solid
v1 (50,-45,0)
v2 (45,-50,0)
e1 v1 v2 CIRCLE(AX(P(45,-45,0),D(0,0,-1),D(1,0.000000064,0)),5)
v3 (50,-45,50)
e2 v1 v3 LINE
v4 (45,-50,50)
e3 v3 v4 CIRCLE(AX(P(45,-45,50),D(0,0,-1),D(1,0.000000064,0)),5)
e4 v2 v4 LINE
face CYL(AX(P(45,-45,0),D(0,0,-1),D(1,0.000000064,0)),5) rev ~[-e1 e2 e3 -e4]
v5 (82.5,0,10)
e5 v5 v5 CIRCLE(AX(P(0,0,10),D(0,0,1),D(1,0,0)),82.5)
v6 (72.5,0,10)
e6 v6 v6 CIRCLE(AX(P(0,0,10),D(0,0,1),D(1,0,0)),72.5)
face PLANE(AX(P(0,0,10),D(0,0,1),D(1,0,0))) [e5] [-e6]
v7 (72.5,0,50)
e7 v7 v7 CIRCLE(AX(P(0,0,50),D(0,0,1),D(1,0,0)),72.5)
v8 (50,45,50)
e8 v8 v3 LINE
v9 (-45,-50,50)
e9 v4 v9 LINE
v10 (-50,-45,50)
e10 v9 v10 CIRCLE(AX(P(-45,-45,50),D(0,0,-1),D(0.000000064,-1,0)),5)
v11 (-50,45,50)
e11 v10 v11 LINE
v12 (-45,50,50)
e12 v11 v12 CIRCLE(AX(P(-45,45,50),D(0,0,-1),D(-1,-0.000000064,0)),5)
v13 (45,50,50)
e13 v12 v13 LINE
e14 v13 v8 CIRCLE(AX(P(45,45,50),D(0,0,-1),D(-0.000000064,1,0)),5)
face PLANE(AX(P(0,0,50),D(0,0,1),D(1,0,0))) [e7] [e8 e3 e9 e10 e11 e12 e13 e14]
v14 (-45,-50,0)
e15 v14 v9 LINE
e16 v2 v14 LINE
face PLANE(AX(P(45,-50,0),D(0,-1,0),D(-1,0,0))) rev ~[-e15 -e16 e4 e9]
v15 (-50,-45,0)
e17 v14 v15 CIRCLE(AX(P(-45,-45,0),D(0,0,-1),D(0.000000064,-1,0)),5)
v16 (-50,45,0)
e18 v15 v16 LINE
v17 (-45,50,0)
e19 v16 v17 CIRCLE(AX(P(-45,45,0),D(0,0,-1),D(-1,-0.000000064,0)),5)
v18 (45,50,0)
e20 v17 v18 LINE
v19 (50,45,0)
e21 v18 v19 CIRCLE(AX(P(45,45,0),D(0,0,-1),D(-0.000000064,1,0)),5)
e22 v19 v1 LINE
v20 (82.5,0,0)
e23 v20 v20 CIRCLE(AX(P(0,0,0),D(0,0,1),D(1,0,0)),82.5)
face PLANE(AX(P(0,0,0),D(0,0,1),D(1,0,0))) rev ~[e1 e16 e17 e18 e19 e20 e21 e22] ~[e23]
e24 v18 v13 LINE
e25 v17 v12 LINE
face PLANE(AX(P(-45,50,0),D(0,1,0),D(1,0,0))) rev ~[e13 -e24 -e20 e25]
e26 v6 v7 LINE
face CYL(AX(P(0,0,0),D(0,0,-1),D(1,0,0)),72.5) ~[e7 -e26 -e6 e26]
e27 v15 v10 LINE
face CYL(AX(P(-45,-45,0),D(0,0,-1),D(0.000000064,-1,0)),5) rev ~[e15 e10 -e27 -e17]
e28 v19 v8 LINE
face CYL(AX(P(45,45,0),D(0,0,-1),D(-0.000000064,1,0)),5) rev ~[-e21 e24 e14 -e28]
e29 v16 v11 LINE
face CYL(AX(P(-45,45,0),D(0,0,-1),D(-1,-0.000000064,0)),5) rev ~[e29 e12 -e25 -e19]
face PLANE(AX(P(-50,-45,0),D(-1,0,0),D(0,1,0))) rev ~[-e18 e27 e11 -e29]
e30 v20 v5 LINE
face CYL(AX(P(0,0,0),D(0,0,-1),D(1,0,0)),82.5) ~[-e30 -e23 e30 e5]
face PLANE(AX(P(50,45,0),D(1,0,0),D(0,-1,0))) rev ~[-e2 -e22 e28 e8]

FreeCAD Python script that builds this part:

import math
import FreeCAD as App
import Part
import Sketcher

V = App.Vector
Q = App.Units.Quantity

doc = App.newDocument("Part")
body = doc.addObject("PartDesign::Body", "Body")

sketch1 = doc.addObject("Sketcher::SketchObject", "Sketch")
body.addObject(sketch1)
sketch1.AttachmentSupport = (doc.XY_Plane, [""])
sketch1.MapMode = "FlatFace"
sketch1.addGeometry([
    Part.Circle(V(0, 0, 0), V(0, 0, 1), 72.5),
    Part.LineSegment(V(50, 45, 0), V(50, -45, 0)),
    Part.ArcOfCircle(Part.Circle(V(45, -45, 0), V(0, 0, 1), 5), math.radians(-90), math.radians(0)),
    Part.LineSegment(V(45, -50, 0), V(-45, -50, 0)),
    Part.ArcOfCircle(Part.Circle(V(-45, -45, 0), V(0, 0, 1), 5), math.radians(180), math.radians(270)),
    Part.LineSegment(V(-50, -45, 0), V(-50, 45, 0)),
    Part.ArcOfCircle(Part.Circle(V(-45, 45, 0), V(0, 0, 1), 5), math.radians(90), math.radians(180)),
    Part.LineSegment(V(-45, 50, 0), V(45, 50, 0)),
    Part.ArcOfCircle(Part.Circle(V(45, 45, 0), V(0, 0, 1), 5), math.radians(0), math.radians(90)),
], False)
sketch1.addConstraint([
    Sketcher.Constraint("Tangent", 1, 2, 2, 2),
    Sketcher.Constraint("Tangent", 2, 1, 3, 1),
    Sketcher.Constraint("Tangent", 3, 2, 4, 2),
    Sketcher.Constraint("Tangent", 4, 1, 5, 1),
    Sketcher.Constraint("Tangent", 5, 2, 6, 2),
    Sketcher.Constraint("Tangent", 6, 1, 7, 1),
    Sketcher.Constraint("Tangent", 7, 2, 8, 2),
    Sketcher.Constraint("Tangent", 8, 1, 1, 1),
    Sketcher.Constraint("Vertical", 1),
    Sketcher.Constraint("Horizontal", 3),
    Sketcher.Constraint("Vertical", 5),
    Sketcher.Constraint("Horizontal", 7),
    Sketcher.Constraint("Coincident", 0, 3, -1, 1),
    Sketcher.Constraint("Equal", 2, 4),
    Sketcher.Constraint("Equal", 4, 6),
    Sketcher.Constraint("Equal", 6, 8),
    Sketcher.Constraint("Symmetric", 2, 3, 6, 3, -1, 1),
    Sketcher.Constraint("Equal", 7, 1),
    Sketcher.Constraint("Diameter", 0, Q("145 mm")),
    Sketcher.Constraint("Radius", 2, Q("5 mm")),
    Sketcher.Constraint("DistanceX", 3, 2, 3, 1, Q("90 mm")),
])
pad1 = doc.addObject("PartDesign::Pad", "Pad")
body.addObject(pad1)
pad1.Profile = sketch1
pad1.Length = 50

sketch2 = doc.addObject("Sketcher::SketchObject", "Sketch001")
body.addObject(sketch2)
sketch2.AttachmentSupport = (doc.XY_Plane, [""])
sketch2.MapMode = "FlatFace"
sketch2.addGeometry([
    Part.Circle(V(0, 0, 0), V(0, 0, 1), 82),
    Part.Circle(V(0, 0, 0), V(0, 0, 1), 72),
], False)
sketch2.addConstraint([
    Sketcher.Constraint("Coincident", 0, 3, -1, 1),
    Sketcher.Constraint("Coincident", 1, 3, -1, 1),
    Sketcher.Constraint("Diameter", 0, Q("165 mm")),
    Sketcher.Constraint("Diameter", 1, Q("145 mm")),
])
pad2 = doc.addObject("PartDesign::Pad", "Pad001")
body.addObject(pad2)
pad2.Profile = sketch2
pad2.Length = 10

doc.recompute()
